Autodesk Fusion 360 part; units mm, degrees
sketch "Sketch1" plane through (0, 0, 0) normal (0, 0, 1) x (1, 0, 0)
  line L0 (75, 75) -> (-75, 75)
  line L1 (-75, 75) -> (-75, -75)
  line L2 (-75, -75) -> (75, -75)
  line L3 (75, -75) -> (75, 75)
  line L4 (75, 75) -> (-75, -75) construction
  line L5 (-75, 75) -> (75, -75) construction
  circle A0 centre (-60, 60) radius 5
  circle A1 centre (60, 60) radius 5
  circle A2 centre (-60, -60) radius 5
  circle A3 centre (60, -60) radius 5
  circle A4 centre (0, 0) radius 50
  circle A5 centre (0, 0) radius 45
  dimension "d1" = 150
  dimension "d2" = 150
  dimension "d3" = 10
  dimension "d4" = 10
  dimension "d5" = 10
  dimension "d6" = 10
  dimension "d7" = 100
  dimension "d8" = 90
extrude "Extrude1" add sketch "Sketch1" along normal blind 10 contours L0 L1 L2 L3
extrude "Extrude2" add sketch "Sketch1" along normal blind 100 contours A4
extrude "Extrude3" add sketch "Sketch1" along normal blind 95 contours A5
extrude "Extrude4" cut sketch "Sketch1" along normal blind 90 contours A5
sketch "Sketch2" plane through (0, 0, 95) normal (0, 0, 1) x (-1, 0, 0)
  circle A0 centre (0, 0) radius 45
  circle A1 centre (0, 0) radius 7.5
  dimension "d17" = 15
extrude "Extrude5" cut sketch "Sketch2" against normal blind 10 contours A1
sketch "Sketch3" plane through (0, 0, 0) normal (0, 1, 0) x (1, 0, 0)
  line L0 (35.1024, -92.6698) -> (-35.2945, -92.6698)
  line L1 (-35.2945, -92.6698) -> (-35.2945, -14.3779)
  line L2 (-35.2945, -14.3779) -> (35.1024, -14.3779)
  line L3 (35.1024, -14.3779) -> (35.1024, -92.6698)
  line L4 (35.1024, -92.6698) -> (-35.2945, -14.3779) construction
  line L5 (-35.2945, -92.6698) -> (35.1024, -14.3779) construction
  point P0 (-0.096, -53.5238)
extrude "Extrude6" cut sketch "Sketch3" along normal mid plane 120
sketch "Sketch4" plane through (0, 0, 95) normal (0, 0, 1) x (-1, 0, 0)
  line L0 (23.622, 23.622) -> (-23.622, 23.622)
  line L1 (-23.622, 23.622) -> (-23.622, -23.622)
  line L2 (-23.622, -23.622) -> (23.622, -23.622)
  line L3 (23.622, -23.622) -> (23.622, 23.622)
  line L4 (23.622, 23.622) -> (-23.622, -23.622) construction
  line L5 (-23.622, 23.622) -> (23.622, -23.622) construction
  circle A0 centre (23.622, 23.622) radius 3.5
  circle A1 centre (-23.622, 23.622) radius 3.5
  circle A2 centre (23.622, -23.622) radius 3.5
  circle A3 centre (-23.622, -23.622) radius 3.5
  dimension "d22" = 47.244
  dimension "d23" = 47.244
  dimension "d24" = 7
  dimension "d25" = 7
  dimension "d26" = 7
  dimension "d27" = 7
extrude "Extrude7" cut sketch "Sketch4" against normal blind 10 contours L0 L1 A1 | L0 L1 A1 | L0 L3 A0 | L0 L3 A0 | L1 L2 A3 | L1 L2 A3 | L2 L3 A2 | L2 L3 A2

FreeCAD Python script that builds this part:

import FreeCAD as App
import Part
import Sketcher
from FreeCAD import Vector

doc = App.newDocument("Part")
params = doc.addObject("Spreadsheet::Sheet", "Params")
for row, (alias, value) in enumerate([
    ("sketch1_diameter", "10 mm"),
    ("sketch1_diameter2", "100 mm"),
    ("sketch1_width", "150 mm"),
    ("pad1_length", "10 mm"),
    ("sketch2_diameter", "100 mm"),
    ("sketch2_diameter2", "90 mm"),
    ("pad2_length", "100 mm"),
    ("sketch3_diameter", "90 mm"),
    ("pad3_length", "95 mm"),
    ("sketch4_diameter", "90 mm"),
    ("pocket1_length", "90 mm"),
    ("sketch5_diameter", "15 mm"),
    ("pocket2_length", "10 mm"),
    ("pocket3_length", "120 mm"),
    ("sketch7_diameter", "7 mm"),
    ("pocket4_length", "10 mm"),
], start=1):
    params.set(f"A{row}", alias)
    params.set(f"B{row}", "=" + value)
    params.setAlias(f"B{row}", alias)

body = doc.addObject("PartDesign::Body", "Body")

sketch1 = body.newObject("Sketcher::SketchObject", "Sketch")
sketch1.AttachmentSupport = (doc.getObject("XY_Plane"), [""])
sketch1.MapMode = "FlatFace"
sketch1.addGeometry(Part.LineSegment(Vector(75, -75, 0), Vector(75, 75, 0)), False)
sketch1.addGeometry(Part.LineSegment(Vector(75, 75, 0), Vector(-75, 75, 0)), False)
sketch1.addGeometry(Part.LineSegment(Vector(-75, 75, 0), Vector(-75, -75, 0)), False)
sketch1.addGeometry(Part.LineSegment(Vector(-75, -75, 0), Vector(75, -75, 0)), False)
sketch1.addGeometry(Part.Circle(Vector(-60, -60, 0), Vector(0, 0, 1), 5), False)
sketch1.addGeometry(Part.Circle(Vector(60, -60, 0), Vector(0, 0, 1), 5), False)
sketch1.addGeometry(Part.Circle(Vector(-60, 60, 0), Vector(0, 0, 1), 5), False)
sketch1.addGeometry(Part.Circle(Vector(0, 0, 0), Vector(0, 0, 1), 50), False)
sketch1.addGeometry(Part.Circle(Vector(60, 60, 0), Vector(0, 0, 1), 5), False)
sketch1.addConstraint(Sketcher.Constraint("Coincident", 0, 2, 1, 1))
sketch1.addConstraint(Sketcher.Constraint("Coincident", 1, 2, 2, 1))
sketch1.addConstraint(Sketcher.Constraint("Coincident", 2, 2, 3, 1))
sketch1.addConstraint(Sketcher.Constraint("Coincident", 3, 2, 0, 1))
sketch1.addConstraint(Sketcher.Constraint("Vertical", 0))
sketch1.addConstraint(Sketcher.Constraint("Horizontal", 1))
sketch1.addConstraint(Sketcher.Constraint("Vertical", 2))
sketch1.addConstraint(Sketcher.Constraint("Horizontal", 3))
sketch1.addConstraint(Sketcher.Constraint("Coincident", 7, 3, -1, 1))
sketch1.addConstraint(Sketcher.Constraint("Equal", 4, 5))
sketch1.addConstraint(Sketcher.Constraint("Equal", 5, 6))
sketch1.addConstraint(Sketcher.Constraint("Equal", 6, 8))
sketch1.addConstraint(Sketcher.Constraint("Symmetric", 5, 3, 6, 3, -1, 1))
sketch1.addConstraint(Sketcher.Constraint("Symmetric", 4, 3, 8, 3, -1, 1))
sketch1.addConstraint(Sketcher.Constraint("Symmetric", 0, 2, 2, 2, -1, 1))
sketch1.addConstraint(Sketcher.Constraint("Symmetric", 4, 3, 5, 3, -2))
sketch1.addConstraint(Sketcher.Constraint("Equal", 3, 0))
sketch1.addConstraint(Sketcher.Constraint("Diameter", 4, 10.0))
sketch1.addConstraint(Sketcher.Constraint("Diameter", 7, 100.0))
sketch1.addConstraint(Sketcher.Constraint("DistanceX", 1, 2, 1, 1, 150.0))
sketch1.addConstraint(Sketcher.Constraint("DistanceX", 4, 3, -1, 1, 60.0))
sketch1.addConstraint(Sketcher.Constraint("DistanceY", 4, 3, -1, 1, 60.0))
sketch1.setExpression("Constraints[17]", "Params.sketch1_diameter")
sketch1.setExpression("Constraints[18]", "Params.sketch1_diameter2")
sketch1.setExpression("Constraints[19]", "Params.sketch1_width")
pad1 = body.newObject("PartDesign::Pad", "Pad")
pad1.Profile = sketch1
pad1.setExpression("Length", "Params.pad1_length")

sketch2 = body.newObject("Sketcher::SketchObject", "Sketch001")
sketch2.AttachmentSupport = (doc.getObject("XY_Plane"), [""])
sketch2.MapMode = "FlatFace"
sketch2.addGeometry(Part.Circle(Vector(0, 0, 0), Vector(0, 0, 1), 50), False)
sketch2.addGeometry(Part.Circle(Vector(0, 0, 0), Vector(0, 0, 1), 45), False)
sketch2.addConstraint(Sketcher.Constraint("Coincident", 0, 3, -1, 1))
sketch2.addConstraint(Sketcher.Constraint("Coincident", 1, 3, -1, 1))
sketch2.addConstraint(Sketcher.Constraint("Diameter", 0, 100.0))
sketch2.addConstraint(Sketcher.Constraint("Diameter", 1, 90.0))
sketch2.setExpression("Constraints[2]", "Params.sketch2_diameter")
sketch2.setExpression("Constraints[3]", "Params.sketch2_diameter2")
pad2 = body.newObject("PartDesign::Pad", "Pad001")
pad2.Profile = sketch2
pad2.setExpression("Length", "Params.pad2_length")

sketch3 = body.newObject("Sketcher::SketchObject", "Sketch002")
sketch3.AttachmentSupport = (doc.getObject("XY_Plane"), [""])
sketch3.MapMode = "FlatFace"
sketch3.addGeometry(Part.Circle(Vector(0, 0, 0), Vector(0, 0, 1), 45), False)
sketch3.addConstraint(Sketcher.Constraint("Coincident", 0, 3, -1, 1))
sketch3.addConstraint(Sketcher.Constraint("Diameter", 0, 90.0))
sketch3.setExpression("Constraints[1]", "Params.sketch3_diameter")
pad3 = body.newObject("PartDesign::Pad", "Pad002")
pad3.Profile = sketch3
pad3.setExpression("Length", "Params.pad3_length")

sketch4 = body.newObject("Sketcher::SketchObject", "Sketch003")
sketch4.AttachmentSupport = (doc.getObject("XY_Plane"), [""])
sketch4.MapMode = "FlatFace"
sketch4.addGeometry(Part.Circle(Vector(0, 0, 0), Vector(0, 0, 1), 45), False)
sketch4.addConstraint(Sketcher.Constraint("Coincident", 0, 3, -1, 1))
sketch4.addConstraint(Sketcher.Constraint("Diameter", 0, 90.0))
sketch4.setExpression("Constraints[1]", "Params.sketch4_diameter")
pocket1 = body.newObject("PartDesign::Pocket", "Pocket")
pocket1.Profile = sketch4
pocket1.setExpression("Length", "Params.pocket1_length")
pocket1.Reversed = True

sketch5 = body.newObject("Sketcher::SketchObject", "Sketch004")
sketch5.AttachmentSupport = (doc.getObject("XY_Plane"), [""])
sketch5.MapMode = "FlatFace"
sketch5.AttachmentOffset = App.Placement(Vector(0, 0, 95), App.Rotation())
sketch5.addGeometry(Part.Circle(Vector(0, 0, 0), Vector(0, 0, 1), 8), False)
sketch5.addConstraint(Sketcher.Constraint("Coincident", 0, 3, -1, 1))
sketch5.addConstraint(Sketcher.Constraint("Diameter", 0, 15.0))
sketch5.setExpression("Constraints[1]", "Params.sketch5_diameter")
pocket2 = body.newObject("PartDesign::Pocket", "Pocket001")
pocket2.Profile = sketch5
pocket2.setExpression("Length", "Params.pocket2_length")

sketch6 = body.newObject("Sketcher::SketchObject", "Sketch005")
sketch6.AttachmentSupport = (doc.getObject("XZ_Plane"), [""])
sketch6.MapMode = "FlatFace"
sketch6.addGeometry(Part.LineSegment(Vector(-35, 93, 0), Vector(35, 93, 0)), False)
sketch6.addGeometry(Part.LineSegment(Vector(35, 93, 0), Vector(35, 14, 0)), False)
sketch6.addGeometry(Part.LineSegment(Vector(35, 14, 0), Vector(-35, 14, 0)), False)
sketch6.addGeometry(Part.LineSegment(Vector(-35, 14, 0), Vector(-35, 93, 0)), False)
sketch6.addConstraint(Sketcher.Constraint("Coincident", 0, 2, 1, 1))
sketch6.addConstraint(Sketcher.Constraint("Coincident", 1, 2, 2, 1))
sketch6.addConstraint(Sketcher.Constraint("Coincident", 2, 2, 3, 1))
sketch6.addConstraint(Sketcher.Constraint("Coincident", 3, 2, 0, 1))
sketch6.addConstraint(Sketcher.Constraint("Horizontal", 0))
sketch6.addConstraint(Sketcher.Constraint("Vertical", 1))
sketch6.addConstraint(Sketcher.Constraint("Horizontal", 2))
sketch6.addConstraint(Sketcher.Constraint("Vertical", 3))
sketch6.addConstraint(Sketcher.Constraint("DistanceX", 0, 1, 0, 2, 70.397))
sketch6.addConstraint(Sketcher.Constraint("DistanceY", 1, 2, 1, 1, 78.292))
sketch6.addConstraint(Sketcher.Constraint("DistanceY", -1, 1, 1, 2, 14.378))
sketch6.addConstraint(Sketcher.Constraint("DistanceX", -1, 1, 0, 2, 35.1024))
pocket3 = body.newObject("PartDesign::Pocket", "Pocket002")
pocket3.Profile = sketch6
pocket3.setExpression("Length", "Params.pocket3_length")
pocket3.Midplane = True

sketch7 = body.newObject("Sketcher::SketchObject", "Sketch006")
sketch7.AttachmentSupport = (doc.getObject("XY_Plane"), [""])
sketch7.MapMode = "FlatFace"
sketch7.AttachmentOffset = App.Placement(Vector(0, 0, 95), App.Rotation())
sketch7.addGeometry(Part.Circle(Vector(23.6, -23.6, 0), Vector(0, 0, 1), 3.5), False)
sketch7.addGeometry(Part.Circle(Vector(-23.6, -23.6, 0), Vector(0, 0, 1), 3.5), False)
sketch7.addGeometry(Part.Circle(Vector(23.6, 23.6, 0), Vector(0, 0, 1), 3.5), False)
sketch7.addGeometry(Part.Circle(Vector(-23.6, 23.6, 0), Vector(0, 0, 1), 3.5), False)
sketch7.addConstraint(Sketcher.Constraint("Equal", 0, 1))
sketch7.addConstraint(Sketcher.Constraint("Equal", 1, 2))
sketch7.addConstraint(Sketcher.Constraint("Equal", 2, 3))
sketch7.addConstraint(Sketcher.Constraint("Symmetric", 1, 3, 2, 3, -1, 1))
sketch7.addConstraint(Sketcher.Constraint("Symmetric", 0, 3, 3, 3, -1, 1))
sketch7.addConstraint(Sketcher.Constraint("Symmetric", 0, 3, 1, 3, -2))
sketch7.addConstraint(Sketcher.Constraint("Diameter", 0, 7.0))
sketch7.addConstraint(Sketcher.Constraint("DistanceX", 1, 3, 0, 3, 47.244))
sketch7.addConstraint(Sketcher.Constraint("DistanceY", 0, 3, 2, 3, 47.244))
sketch7.setExpression("Constraints[6]", "Params.sketch7_diameter")
pocket4 = body.newObject("PartDesign::Pocket", "Pocket003")
pocket4.Profile = sketch7
pocket4.setExpression("Length", "Params.pocket4_length")

doc.recompute()
